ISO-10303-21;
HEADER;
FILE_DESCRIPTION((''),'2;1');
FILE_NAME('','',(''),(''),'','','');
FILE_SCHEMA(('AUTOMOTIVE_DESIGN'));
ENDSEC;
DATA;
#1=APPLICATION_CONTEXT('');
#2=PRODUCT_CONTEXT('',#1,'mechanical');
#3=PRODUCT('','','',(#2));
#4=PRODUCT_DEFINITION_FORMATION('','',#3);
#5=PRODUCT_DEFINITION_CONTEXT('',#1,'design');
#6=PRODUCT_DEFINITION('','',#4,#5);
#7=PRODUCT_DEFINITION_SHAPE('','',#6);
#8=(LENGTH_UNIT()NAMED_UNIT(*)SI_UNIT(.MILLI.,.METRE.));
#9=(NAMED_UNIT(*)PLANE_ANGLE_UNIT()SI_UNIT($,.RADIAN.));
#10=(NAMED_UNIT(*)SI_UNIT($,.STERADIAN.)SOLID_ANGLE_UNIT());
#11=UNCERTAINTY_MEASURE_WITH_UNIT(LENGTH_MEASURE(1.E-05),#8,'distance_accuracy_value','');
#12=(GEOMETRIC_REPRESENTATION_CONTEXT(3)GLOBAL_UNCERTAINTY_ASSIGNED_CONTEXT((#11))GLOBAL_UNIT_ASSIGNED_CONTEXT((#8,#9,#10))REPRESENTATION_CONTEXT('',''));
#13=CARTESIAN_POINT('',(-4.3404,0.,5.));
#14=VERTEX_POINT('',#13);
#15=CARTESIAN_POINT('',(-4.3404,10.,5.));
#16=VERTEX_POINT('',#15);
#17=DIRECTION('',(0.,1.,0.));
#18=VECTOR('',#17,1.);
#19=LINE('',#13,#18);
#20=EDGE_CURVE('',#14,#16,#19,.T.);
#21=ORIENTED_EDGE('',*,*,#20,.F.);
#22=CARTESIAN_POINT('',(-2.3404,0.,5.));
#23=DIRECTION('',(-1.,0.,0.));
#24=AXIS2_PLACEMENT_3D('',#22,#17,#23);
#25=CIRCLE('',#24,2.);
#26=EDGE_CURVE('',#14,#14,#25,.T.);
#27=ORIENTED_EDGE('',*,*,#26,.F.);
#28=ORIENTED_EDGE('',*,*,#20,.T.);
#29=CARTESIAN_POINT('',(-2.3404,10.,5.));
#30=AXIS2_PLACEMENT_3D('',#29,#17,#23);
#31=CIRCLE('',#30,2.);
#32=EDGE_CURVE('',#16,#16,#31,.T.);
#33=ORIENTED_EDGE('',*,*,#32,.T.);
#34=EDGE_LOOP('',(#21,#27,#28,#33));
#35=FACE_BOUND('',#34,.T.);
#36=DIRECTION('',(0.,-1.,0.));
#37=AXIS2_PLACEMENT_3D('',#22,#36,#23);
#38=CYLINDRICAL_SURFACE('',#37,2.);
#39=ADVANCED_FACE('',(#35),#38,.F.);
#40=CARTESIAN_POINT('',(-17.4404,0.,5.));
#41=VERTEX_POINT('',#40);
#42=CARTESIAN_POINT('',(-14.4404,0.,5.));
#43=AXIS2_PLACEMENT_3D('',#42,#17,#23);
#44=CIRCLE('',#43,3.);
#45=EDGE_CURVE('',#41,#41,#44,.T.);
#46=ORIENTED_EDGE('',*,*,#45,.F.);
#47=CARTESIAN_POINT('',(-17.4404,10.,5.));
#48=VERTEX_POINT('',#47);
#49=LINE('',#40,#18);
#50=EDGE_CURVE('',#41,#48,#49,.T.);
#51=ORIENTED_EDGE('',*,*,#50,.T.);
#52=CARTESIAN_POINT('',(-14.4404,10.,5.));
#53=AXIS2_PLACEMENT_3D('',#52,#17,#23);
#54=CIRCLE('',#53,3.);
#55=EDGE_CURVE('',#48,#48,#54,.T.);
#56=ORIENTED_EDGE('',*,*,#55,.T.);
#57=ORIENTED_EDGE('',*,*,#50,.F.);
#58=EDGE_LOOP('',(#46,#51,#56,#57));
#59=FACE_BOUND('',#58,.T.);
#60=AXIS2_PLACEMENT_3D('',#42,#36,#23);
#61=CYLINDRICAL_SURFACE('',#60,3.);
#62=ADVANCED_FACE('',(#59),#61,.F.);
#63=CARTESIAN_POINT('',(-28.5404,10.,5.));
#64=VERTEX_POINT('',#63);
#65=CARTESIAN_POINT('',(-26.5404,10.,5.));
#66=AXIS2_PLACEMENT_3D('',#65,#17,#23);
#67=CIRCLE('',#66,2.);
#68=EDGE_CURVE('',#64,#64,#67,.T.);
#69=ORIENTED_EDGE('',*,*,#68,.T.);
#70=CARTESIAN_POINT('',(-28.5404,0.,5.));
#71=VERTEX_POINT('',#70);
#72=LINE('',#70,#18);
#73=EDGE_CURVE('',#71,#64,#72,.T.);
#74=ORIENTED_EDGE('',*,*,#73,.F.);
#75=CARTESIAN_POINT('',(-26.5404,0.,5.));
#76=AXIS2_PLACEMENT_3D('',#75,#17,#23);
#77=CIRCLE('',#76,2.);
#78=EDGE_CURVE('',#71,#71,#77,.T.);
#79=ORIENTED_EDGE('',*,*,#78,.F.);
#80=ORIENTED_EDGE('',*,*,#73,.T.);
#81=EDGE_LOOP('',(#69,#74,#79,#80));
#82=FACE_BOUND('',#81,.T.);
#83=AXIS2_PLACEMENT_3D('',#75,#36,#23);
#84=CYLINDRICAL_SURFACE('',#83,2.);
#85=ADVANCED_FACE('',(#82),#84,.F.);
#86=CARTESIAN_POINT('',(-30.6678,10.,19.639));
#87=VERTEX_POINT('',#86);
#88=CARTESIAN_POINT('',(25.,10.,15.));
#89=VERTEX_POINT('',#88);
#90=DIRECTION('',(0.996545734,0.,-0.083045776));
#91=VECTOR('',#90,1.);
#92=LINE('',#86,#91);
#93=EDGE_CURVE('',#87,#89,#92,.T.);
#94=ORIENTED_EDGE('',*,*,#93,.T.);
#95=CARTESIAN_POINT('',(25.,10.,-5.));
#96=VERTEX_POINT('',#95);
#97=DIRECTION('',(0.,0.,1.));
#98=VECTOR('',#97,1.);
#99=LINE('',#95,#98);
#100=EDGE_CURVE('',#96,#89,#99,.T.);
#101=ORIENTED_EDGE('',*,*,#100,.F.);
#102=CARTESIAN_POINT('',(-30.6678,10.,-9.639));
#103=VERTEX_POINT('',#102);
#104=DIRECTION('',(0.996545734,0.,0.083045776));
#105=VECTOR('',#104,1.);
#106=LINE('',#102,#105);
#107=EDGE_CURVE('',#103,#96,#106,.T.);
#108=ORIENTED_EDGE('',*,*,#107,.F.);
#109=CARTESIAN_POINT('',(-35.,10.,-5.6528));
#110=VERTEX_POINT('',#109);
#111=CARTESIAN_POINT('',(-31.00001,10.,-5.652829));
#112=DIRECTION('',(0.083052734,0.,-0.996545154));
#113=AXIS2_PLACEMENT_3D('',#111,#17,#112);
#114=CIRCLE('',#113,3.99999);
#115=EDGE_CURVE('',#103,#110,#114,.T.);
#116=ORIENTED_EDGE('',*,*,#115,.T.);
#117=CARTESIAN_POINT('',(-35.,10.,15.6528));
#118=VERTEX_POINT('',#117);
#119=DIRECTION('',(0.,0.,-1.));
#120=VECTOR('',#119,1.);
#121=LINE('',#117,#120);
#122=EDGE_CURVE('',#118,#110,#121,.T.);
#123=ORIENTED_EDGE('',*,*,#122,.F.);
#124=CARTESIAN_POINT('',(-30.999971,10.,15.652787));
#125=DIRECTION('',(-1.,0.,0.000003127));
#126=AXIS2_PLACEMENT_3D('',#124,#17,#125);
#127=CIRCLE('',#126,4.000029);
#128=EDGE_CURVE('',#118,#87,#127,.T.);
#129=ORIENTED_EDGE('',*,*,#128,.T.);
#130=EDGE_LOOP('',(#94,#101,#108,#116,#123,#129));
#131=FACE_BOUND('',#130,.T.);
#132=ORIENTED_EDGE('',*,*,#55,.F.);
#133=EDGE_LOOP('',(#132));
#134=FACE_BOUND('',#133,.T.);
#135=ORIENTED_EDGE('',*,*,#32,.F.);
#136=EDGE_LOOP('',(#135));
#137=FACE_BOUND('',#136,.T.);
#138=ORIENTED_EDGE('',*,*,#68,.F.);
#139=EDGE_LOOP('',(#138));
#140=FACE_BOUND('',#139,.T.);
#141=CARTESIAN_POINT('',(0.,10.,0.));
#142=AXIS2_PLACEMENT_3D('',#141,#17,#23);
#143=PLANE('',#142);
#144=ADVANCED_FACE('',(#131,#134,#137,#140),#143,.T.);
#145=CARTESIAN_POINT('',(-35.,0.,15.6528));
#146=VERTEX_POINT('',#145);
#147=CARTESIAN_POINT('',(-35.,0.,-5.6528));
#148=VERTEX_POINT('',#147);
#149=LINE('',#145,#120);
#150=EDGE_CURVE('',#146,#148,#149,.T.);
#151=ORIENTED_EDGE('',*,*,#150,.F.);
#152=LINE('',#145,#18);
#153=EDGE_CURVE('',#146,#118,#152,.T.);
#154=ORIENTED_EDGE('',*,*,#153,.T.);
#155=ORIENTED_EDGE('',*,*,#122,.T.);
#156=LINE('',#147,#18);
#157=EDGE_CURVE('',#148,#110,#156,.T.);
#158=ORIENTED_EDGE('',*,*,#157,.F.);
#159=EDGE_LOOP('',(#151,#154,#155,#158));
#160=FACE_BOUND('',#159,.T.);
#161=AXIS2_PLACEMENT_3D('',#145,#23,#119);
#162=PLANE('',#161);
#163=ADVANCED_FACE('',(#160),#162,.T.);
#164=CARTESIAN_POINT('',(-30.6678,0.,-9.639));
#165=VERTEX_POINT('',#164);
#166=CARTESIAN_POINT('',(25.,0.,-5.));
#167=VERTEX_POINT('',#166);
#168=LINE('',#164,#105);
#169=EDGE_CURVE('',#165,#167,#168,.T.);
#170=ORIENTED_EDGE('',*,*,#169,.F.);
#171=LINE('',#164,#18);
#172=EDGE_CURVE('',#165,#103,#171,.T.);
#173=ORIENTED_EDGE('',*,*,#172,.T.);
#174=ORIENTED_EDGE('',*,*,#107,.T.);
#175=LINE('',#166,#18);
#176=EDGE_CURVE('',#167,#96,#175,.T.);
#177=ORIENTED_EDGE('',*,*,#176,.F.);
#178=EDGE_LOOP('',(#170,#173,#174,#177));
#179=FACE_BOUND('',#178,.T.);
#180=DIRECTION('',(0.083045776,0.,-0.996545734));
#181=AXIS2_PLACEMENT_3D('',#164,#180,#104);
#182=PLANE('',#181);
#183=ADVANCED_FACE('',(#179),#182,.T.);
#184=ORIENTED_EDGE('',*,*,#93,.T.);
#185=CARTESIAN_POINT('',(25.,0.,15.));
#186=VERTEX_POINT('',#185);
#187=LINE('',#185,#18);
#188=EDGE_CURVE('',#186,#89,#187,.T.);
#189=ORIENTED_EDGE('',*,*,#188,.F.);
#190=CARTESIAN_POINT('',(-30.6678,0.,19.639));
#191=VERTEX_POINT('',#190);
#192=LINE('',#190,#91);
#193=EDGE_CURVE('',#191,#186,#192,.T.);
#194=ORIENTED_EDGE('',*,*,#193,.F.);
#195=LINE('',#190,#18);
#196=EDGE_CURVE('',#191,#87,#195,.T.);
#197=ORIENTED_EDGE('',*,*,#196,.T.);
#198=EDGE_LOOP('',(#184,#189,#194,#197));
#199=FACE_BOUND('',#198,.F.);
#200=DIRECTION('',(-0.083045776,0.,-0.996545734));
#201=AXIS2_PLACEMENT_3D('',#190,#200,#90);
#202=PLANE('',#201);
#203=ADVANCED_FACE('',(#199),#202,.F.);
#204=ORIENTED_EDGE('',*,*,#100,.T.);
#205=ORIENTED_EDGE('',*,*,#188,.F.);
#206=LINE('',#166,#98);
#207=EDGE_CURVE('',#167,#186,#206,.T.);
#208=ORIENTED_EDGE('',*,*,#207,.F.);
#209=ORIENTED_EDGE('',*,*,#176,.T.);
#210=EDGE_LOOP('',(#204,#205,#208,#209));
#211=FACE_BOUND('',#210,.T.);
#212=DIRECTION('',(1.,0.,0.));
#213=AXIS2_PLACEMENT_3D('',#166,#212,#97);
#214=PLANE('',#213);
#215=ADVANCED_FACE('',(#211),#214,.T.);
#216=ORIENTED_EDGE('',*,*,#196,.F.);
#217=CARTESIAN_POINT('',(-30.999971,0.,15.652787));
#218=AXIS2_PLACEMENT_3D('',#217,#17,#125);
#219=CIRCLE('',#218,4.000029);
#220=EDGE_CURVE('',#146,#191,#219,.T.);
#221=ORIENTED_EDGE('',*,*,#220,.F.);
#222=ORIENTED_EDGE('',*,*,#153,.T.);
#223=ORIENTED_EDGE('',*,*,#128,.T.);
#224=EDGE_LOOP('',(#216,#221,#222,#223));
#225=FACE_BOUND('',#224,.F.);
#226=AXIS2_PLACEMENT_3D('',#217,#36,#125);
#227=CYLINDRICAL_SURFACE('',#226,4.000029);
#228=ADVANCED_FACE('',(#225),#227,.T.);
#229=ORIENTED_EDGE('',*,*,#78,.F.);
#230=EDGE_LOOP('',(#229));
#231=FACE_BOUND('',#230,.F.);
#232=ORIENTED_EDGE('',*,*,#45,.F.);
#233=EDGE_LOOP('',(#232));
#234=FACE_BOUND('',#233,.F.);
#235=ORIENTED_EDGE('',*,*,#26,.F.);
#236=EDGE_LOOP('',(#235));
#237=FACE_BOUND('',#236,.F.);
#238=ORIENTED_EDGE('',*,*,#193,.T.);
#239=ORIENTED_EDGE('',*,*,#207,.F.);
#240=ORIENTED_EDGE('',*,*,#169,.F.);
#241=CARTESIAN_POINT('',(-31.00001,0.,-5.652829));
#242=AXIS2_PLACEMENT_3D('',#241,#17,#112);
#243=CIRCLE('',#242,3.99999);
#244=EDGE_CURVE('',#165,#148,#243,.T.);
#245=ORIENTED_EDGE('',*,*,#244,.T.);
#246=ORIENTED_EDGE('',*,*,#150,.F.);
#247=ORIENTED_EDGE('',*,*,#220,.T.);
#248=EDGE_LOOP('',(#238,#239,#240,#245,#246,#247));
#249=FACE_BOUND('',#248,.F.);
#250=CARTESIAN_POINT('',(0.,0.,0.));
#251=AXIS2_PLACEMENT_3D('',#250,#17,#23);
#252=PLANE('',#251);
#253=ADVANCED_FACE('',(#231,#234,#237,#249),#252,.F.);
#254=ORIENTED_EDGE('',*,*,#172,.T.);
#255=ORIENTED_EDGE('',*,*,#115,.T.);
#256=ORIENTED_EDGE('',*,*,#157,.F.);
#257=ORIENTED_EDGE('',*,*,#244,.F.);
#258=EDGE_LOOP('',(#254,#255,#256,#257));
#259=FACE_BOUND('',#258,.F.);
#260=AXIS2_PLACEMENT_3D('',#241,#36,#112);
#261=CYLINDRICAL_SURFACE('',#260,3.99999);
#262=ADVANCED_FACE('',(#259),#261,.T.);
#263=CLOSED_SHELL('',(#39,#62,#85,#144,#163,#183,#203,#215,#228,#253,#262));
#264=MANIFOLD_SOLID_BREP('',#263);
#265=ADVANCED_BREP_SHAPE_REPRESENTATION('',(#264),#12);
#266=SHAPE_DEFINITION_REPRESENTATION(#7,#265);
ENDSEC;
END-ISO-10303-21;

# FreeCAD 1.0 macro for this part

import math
import FreeCAD as App
import Part
import Sketcher
Q = App.Units.Quantity

doc = App.newDocument("Part")
body = doc.addObject("PartDesign::Body", "Body")

# Sketch on XZ plane
sketch1 = body.newObject("Sketcher::SketchObject", "Sketch")
sketch1.AttachmentSupport = (doc.getObject("XZ_Plane"), [""])
sketch1.MapMode = "FlatFace"
sketch1.addGeometry(Part.LineSegment(App.Vector(-35, -5.6528, 0), App.Vector(-35, 15.6528, 0)), False)
sketch1.addGeometry(Part.ArcOfCircle(Part.Circle(App.Vector(-31, 15.6528, 0), App.Vector(0, 0, 1), 4), math.radians(85.23612), math.radians(180)), False)
sketch1.addGeometry(Part.LineSegment(App.Vector(-30.6678, 19.639, 0), App.Vector(25, 15, 0)), False)
sketch1.addGeometry(Part.LineSegment(App.Vector(25, 15, 0), App.Vector(25, -5, 0)), False)
sketch1.addGeometry(Part.LineSegment(App.Vector(25, -5, 0), App.Vector(-30.6678, -9.639, 0)), False)
sketch1.addGeometry(Part.ArcOfCircle(Part.Circle(App.Vector(-31, -5.6528, 0), App.Vector(0, 0, 1), 4.000018), math.radians(180), math.radians(274.76388)), False)
sketch1.addGeometry(Part.Circle(App.Vector(-2.3404, 5, 0), App.Vector(0, 0, 1), 2), False)
sketch1.addGeometry(Part.Circle(App.Vector(-14.4404, 5, 0), App.Vector(0, 0, 1), 3), False)
sketch1.addGeometry(Part.Circle(App.Vector(-26.5404, 5, 0), App.Vector(0, 0, 1), 2), False)
sketch1.addConstraint(Sketcher.Constraint("Tangent", 0, 2, 1, 2))
sketch1.addConstraint(Sketcher.Constraint("Tangent", 1, 1, 2, 1))
sketch1.addConstraint(Sketcher.Constraint("Coincident", 2, 2, 3, 1))
sketch1.addConstraint(Sketcher.Constraint("Coincident", 3, 2, 4, 1))
sketch1.addConstraint(Sketcher.Constraint("Tangent", 4, 2, 5, 2))
sketch1.addConstraint(Sketcher.Constraint("Tangent", 5, 1, 0, 1))
sketch1.addConstraint(Sketcher.Constraint("Vertical", 0))
sketch1.addConstraint(Sketcher.Constraint("Vertical", 3))
sketch1.addConstraint(Sketcher.Constraint("Equal", 1, 5))
sketch1.addConstraint(Sketcher.Constraint("Equal", 6, 8))
sketch1.addConstraint(Sketcher.Constraint("Horizontal", 6, 3, 7, 3))
sketch1.addConstraint(Sketcher.Constraint("Horizontal", 7, 3, 8, 3))
sketch1.addConstraint(Sketcher.Constraint("Vertical", 1, 1, 4, 2))
sketch1.addConstraint(Sketcher.Constraint("Diameter", 6, Q("4 mm")))
sketch1.addConstraint(Sketcher.Constraint("Radius", 1, Q("4 mm")))
sketch1.addConstraint(Sketcher.Constraint("Diameter", 7, Q("6 mm")))
sketch1.addConstraint(Sketcher.Constraint("DistanceY", -1, 1, 2, 2, Q("15 mm")))
sketch1.addConstraint(Sketcher.Constraint("DistanceY", 3, 2, 3, 1, Q("20 mm")))
sketch1.addConstraint(Sketcher.Constraint("DistanceX", 1, 3, -1, 1, Q("31 mm")))
sketch1.addConstraint(Sketcher.Constraint("DistanceY", -1, 1, 6, 3, Q("5 mm")))
sketch1.addConstraint(Sketcher.Constraint("DistanceX", -1, 1, 2, 2, Q("25 mm")))
sketch1.addConstraint(Sketcher.Constraint("DistanceX", 7, 3, 6, 3, Q("12.1 mm")))
sketch1.addConstraint(Sketcher.Constraint("DistanceX", 8, 3, 7, 3, Q("12.1 mm")))
sketch1.addConstraint(Sketcher.Constraint("DistanceY", 0, 1, 0, 2, Q("21.3056 mm")))
sketch1.addConstraint(Sketcher.Constraint("DistanceX", 6, 3, -1, 1, Q("2.3404 mm")))
pad1 = body.newObject("PartDesign::Pad", "Pad")
pad1.Profile = sketch1
pad1.Length = 10
pad1.Reversed = True

doc.recompute()
